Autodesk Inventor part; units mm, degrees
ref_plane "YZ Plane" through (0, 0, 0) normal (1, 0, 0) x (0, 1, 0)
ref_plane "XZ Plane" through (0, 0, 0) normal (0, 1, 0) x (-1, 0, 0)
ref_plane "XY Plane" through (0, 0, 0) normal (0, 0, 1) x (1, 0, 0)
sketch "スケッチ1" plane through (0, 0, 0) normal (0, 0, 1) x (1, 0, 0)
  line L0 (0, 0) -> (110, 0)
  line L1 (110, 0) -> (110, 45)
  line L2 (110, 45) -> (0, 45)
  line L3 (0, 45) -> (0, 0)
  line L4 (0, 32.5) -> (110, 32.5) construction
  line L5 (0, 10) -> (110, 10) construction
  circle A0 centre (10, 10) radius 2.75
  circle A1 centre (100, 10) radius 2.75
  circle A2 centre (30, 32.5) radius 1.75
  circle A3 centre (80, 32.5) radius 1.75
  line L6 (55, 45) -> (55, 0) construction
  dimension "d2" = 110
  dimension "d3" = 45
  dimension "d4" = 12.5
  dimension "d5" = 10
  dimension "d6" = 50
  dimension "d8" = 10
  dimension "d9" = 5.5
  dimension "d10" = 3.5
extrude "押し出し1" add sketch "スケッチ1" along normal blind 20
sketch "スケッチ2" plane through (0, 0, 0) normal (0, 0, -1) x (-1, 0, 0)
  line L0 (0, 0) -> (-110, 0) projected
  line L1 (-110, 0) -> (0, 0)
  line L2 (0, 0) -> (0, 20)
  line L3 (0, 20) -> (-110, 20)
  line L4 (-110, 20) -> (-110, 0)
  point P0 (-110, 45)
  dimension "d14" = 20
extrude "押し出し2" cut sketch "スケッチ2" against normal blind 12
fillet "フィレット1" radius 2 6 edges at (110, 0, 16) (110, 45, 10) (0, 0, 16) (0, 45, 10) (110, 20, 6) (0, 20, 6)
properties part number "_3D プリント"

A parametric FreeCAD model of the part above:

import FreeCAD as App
import Part
import Sketcher

V = App.Vector
Q = App.Units.Quantity


def edges_at(feature, points):
    """Names of the edges that pass closest to the given points."""
    edges = feature.Shape.Edges
    near = lambda p: min(range(len(edges)), key=lambda i: edges[i].distToShape(Part.Vertex(*p))[0])
    return sorted({f"Edge{near(p) + 1}" for p in points})


def add_polygon(sketch, points):
    """Adds a closed chain of lines whose ends are joined by coincident constraints."""
    first, n = sketch.GeometryCount, len(points)
    for a, b in zip(points, points[1:] + points[:1]):
        sketch.addGeometry(Part.LineSegment(App.Vector(*a, 0), App.Vector(*b, 0)), False)
    for i in range(n):
        sketch.addConstraint(Sketcher.Constraint("Coincident", first + i, 2, first + (i + 1) % n, 1))

doc = App.newDocument("Part")
params = doc.addObject("Spreadsheet::Sheet", "Params")
for row, (alias, value) in enumerate([
    ("sketch1_diameter", "5.5 mm"),
    ("sketch1_diameter2", "3.5 mm"),
    ("sketch1_width", "110 mm"),
    ("sketch1_height", "45 mm"),
    ("pad1_length", "20 mm"),
    ("sketch2_height", "20 mm"),
    ("sketch2_width", "110 mm"),
    ("pocket1_length", "12 mm"),
    ("fillet_radius", "2 mm"),
], start=1):
    params.set(f"A{row}", alias)
    params.set(f"B{row}", "=" + value)
    params.setAlias(f"B{row}", alias)

body = doc.addObject("PartDesign::Body", "Body")

# Sketch on XY plane
sketch1 = body.newObject("Sketcher::SketchObject", "Sketch")
sketch1.AttachmentSupport = (doc.getObject("XY_Plane"), [""])
sketch1.MapMode = "FlatFace"
add_polygon(sketch1, [(0, 45), (0, 0), (110, 0), (110, 45)])  # lines 0-3
sketch1.addGeometry(Part.Circle(V(10, 10, 0), V(0, 0, 1), 2.75), False)  # 4
sketch1.addGeometry(Part.Circle(V(100, 10, 0), V(0, 0, 1), 2.75), False)  # 5
sketch1.addGeometry(Part.Circle(V(30, 32.5, 0), V(0, 0, 1), 1.75), False)  # 6
sketch1.addGeometry(Part.Circle(V(80, 32.5, 0), V(0, 0, 1), 1.75), False)  # 7
sketch1.addConstraint(Sketcher.Constraint("Vertical", 0))
sketch1.addConstraint(Sketcher.Constraint("Horizontal", 1))
sketch1.addConstraint(Sketcher.Constraint("Vertical", 2))
sketch1.addConstraint(Sketcher.Constraint("Horizontal", 3))
sketch1.addConstraint(Sketcher.Constraint("Coincident", 0, 2, -1, 1))
sketch1.addConstraint(Sketcher.Constraint("Equal", 4, 5))
sketch1.addConstraint(Sketcher.Constraint("Equal", 6, 7))
sketch1.addConstraint(Sketcher.Constraint("Horizontal", 4, 3, 5, 3))
sketch1.addConstraint(Sketcher.Constraint("Horizontal", 6, 3, 7, 3))
sketch1.addConstraint(Sketcher.Constraint("Diameter", 4, Q("5.5 mm")))
sketch1.addConstraint(Sketcher.Constraint("Diameter", 6, Q("3.5 mm")))
sketch1.addConstraint(Sketcher.Constraint("DistanceX", 1, 1, 1, 2, Q("110 mm")))
sketch1.addConstraint(Sketcher.Constraint("DistanceY", 0, 2, 0, 1, Q("45 mm")))
sketch1.addConstraint(Sketcher.Constraint("DistanceX", -1, 1, 4, 3, Q("10 mm")))
sketch1.addConstraint(Sketcher.Constraint("DistanceY", -1, 1, 4, 3, Q("10 mm")))
sketch1.addConstraint(Sketcher.Constraint("DistanceX", 6, 3, 7, 3, Q("50 mm")))
sketch1.addConstraint(Sketcher.Constraint("DistanceX", 5, 3, 1, 2, Q("10 mm")))
sketch1.addConstraint(Sketcher.Constraint("DistanceY", 7, 3, 2, 2, Q("12.5 mm")))
sketch1.addConstraint(Sketcher.Constraint("DistanceX", -1, 1, 6, 3, Q("30 mm")))
sketch1.setExpression("Constraints[13]", "Params.sketch1_diameter")
sketch1.setExpression("Constraints[14]", "Params.sketch1_diameter2")
sketch1.setExpression("Constraints[15]", "Params.sketch1_width")
sketch1.setExpression("Constraints[16]", "Params.sketch1_height")
pad1 = body.newObject("PartDesign::Pad", "Pad")
pad1.Profile = sketch1
pad1.setExpression("Length", "Params.pad1_length")

# Sketch on XY plane
sketch2 = body.newObject("Sketcher::SketchObject", "Sketch001")
sketch2.AttachmentSupport = (doc.getObject("XY_Plane"), [""])
sketch2.MapMode = "FlatFace"
add_polygon(sketch2, [(110, 0), (0, 0), (0, 20), (110, 20)])  # lines 0-3
sketch2.addConstraint(Sketcher.Constraint("Horizontal", 0))
sketch2.addConstraint(Sketcher.Constraint("Vertical", 1))
sketch2.addConstraint(Sketcher.Constraint("Horizontal", 2))
sketch2.addConstraint(Sketcher.Constraint("Vertical", 3))
sketch2.addConstraint(Sketcher.Constraint("Coincident", 0, 2, -1, 1))
sketch2.addConstraint(Sketcher.Constraint("DistanceY", 1, 1, 1, 2, Q("20 mm")))
sketch2.addConstraint(Sketcher.Constraint("DistanceX", 0, 2, 0, 1, Q("110 mm")))
sketch2.setExpression("Constraints[9]", "Params.sketch2_height")
sketch2.setExpression("Constraints[10]", "Params.sketch2_width")
pocket1 = body.newObject("PartDesign::Pocket", "Pocket")
pocket1.Profile = sketch2
pocket1.setExpression("Length", "Params.pocket1_length")
pocket1.Reversed = True
doc.recompute()

fillet = body.newObject("PartDesign::Fillet", "Fillet")
fillet.Base = (pocket1, edges_at(pocket1, [
    (110, 0, 16),
    (110, 45, 10),
    (0, 0, 16),
    (0, 45, 10),
    (110, 20, 6),
    (0, 20, 6),
]))
fillet.setExpression("Radius", "Params.fillet_radius")

doc.recompute()
